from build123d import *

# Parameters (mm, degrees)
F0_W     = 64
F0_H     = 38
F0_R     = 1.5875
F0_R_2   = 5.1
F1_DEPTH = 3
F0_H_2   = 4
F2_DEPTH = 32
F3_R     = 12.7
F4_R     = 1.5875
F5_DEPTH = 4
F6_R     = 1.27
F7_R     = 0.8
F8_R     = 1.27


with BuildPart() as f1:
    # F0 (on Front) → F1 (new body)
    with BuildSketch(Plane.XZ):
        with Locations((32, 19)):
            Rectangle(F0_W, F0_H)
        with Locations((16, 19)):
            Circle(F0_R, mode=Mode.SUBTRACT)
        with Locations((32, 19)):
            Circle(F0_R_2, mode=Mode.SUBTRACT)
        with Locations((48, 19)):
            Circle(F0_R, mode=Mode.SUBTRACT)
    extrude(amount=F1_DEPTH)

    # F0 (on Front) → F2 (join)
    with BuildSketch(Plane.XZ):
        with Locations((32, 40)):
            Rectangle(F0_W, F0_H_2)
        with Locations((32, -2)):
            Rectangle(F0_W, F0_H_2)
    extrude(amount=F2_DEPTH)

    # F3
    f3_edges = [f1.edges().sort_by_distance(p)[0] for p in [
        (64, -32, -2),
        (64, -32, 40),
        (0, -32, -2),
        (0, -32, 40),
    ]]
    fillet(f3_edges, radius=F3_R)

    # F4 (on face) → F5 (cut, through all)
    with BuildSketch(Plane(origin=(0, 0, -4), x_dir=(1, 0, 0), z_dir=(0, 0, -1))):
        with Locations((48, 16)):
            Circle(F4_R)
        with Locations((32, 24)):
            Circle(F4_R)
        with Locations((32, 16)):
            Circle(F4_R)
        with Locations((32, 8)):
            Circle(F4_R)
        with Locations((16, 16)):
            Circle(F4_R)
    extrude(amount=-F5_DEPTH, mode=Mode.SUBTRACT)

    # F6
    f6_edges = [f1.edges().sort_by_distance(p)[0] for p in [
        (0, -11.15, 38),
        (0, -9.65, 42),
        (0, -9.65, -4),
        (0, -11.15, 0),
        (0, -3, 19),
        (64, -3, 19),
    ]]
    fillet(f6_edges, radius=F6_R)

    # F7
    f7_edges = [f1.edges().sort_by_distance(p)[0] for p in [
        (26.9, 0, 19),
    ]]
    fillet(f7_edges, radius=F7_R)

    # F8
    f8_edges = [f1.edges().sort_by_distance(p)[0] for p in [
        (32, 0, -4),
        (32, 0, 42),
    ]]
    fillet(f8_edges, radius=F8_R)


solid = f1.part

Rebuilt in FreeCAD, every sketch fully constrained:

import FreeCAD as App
import Part
import Sketcher

V = App.Vector
Q = App.Units.Quantity


def edges_at(feature, points):
    """Names of the edges that pass closest to the given points."""
    edges = feature.Shape.Edges
    near = lambda p: min(range(len(edges)), key=lambda i: edges[i].distToShape(Part.Vertex(*p))[0])
    return sorted({f"Edge{near(p) + 1}" for p in points})

doc = App.newDocument("Part")
body = doc.addObject("PartDesign::Body", "Body")

# Sketch on XZ plane
sketch1 = doc.addObject("Sketcher::SketchObject", "Sketch")
body.addObject(sketch1)
sketch1.AttachmentSupport = (doc.XZ_Plane, [""])
sketch1.MapMode = "FlatFace"
sketch1.addGeometry([
    Part.LineSegment(V(0, 38, 0), V(0, 0, 0)),  # 0
    Part.LineSegment(V(0, 0, 0), V(64, 0, 0)),  # 1
    Part.LineSegment(V(64, 0, 0), V(64, 38, 0)),  # 2
    Part.LineSegment(V(64, 38, 0), V(0, 38, 0)),  # 3
    Part.Circle(V(16, 19, 0), V(0, 0, 1), 1.5875),  # 4
    Part.Circle(V(32, 19, 0), V(0, 0, 1), 5.1),  # 5
    Part.Circle(V(48, 19, 0), V(0, 0, 1), 1.5875),  # 6
], False)
sketch1.addConstraint([
    Sketcher.Constraint("Coincident", 0, 2, 1, 1),
    Sketcher.Constraint("Coincident", 1, 2, 2, 1),
    Sketcher.Constraint("Coincident", 2, 2, 3, 1),
    Sketcher.Constraint("Coincident", 3, 2, 0, 1),
    Sketcher.Constraint("Vertical", 0),
    Sketcher.Constraint("Horizontal", 1),
    Sketcher.Constraint("Vertical", 2),
    Sketcher.Constraint("Horizontal", 3),
    Sketcher.Constraint("Coincident", 0, 2, -1, 1),
    Sketcher.Constraint("Equal", 4, 6),
    Sketcher.Constraint("Horizontal", 4, 3, 5, 3),
    Sketcher.Constraint("Horizontal", 5, 3, 6, 3),
    Sketcher.Constraint("Diameter", 5, Q("10.2 mm")),
    Sketcher.Constraint("DistanceX", 1, 1, 1, 2, Q("64 mm")),
    Sketcher.Constraint("DistanceY", 0, 2, 0, 1, Q("38 mm")),
    Sketcher.Constraint("Diameter", 4, Q("3.175 mm")),
    Sketcher.Constraint("DistanceX", -1, 1, 4, 3, Q("16 mm")),
    Sketcher.Constraint("DistanceY", -1, 1, 4, 3, Q("19 mm")),
    Sketcher.Constraint("DistanceX", -1, 1, 5, 3, Q("32 mm")),
    Sketcher.Constraint("DistanceX", -1, 1, 6, 3, Q("48 mm")),
])
pad1 = doc.addObject("PartDesign::Pad", "Pad")
body.addObject(pad1)
pad1.Profile = sketch1
pad1.Length = 3

# Sketch on XZ plane
sketch2 = doc.addObject("Sketcher::SketchObject", "Sketch001")
body.addObject(sketch2)
sketch2.AttachmentSupport = (doc.XZ_Plane, [""])
sketch2.MapMode = "FlatFace"
sketch2.addGeometry([
    Part.LineSegment(V(0, 42, 0), V(0, 38, 0)),  # 0
    Part.LineSegment(V(0, 38, 0), V(64, 38, 0)),  # 1
    Part.LineSegment(V(64, 38, 0), V(64, 42, 0)),  # 2
    Part.LineSegment(V(64, 42, 0), V(0, 42, 0)),  # 3
    Part.LineSegment(V(0, 0, 0), V(0, -4, 0)),  # 4
    Part.LineSegment(V(0, -4, 0), V(64, -4, 0)),  # 5
    Part.LineSegment(V(64, -4, 0), V(64, 0, 0)),  # 6
    Part.LineSegment(V(64, 0, 0), V(0, 0, 0)),  # 7
], False)
sketch2.addConstraint([
    Sketcher.Constraint("Coincident", 0, 2, 1, 1),
    Sketcher.Constraint("Coincident", 1, 2, 2, 1),
    Sketcher.Constraint("Coincident", 2, 2, 3, 1),
    Sketcher.Constraint("Coincident", 3, 2, 0, 1),
    Sketcher.Constraint("Coincident", 4, 2, 5, 1),
    Sketcher.Constraint("Coincident", 5, 2, 6, 1),
    Sketcher.Constraint("Coincident", 6, 2, 7, 1),
    Sketcher.Constraint("Coincident", 7, 2, 4, 1),
    Sketcher.Constraint("Vertical", 0),
    Sketcher.Constraint("Horizontal", 1),
    Sketcher.Constraint("Vertical", 2),
    Sketcher.Constraint("Horizontal", 3),
    Sketcher.Constraint("Vertical", 4),
    Sketcher.Constraint("Horizontal", 5),
    Sketcher.Constraint("Vertical", 6),
    Sketcher.Constraint("Horizontal", 7),
    Sketcher.Constraint("Coincident", 7, 2, -1, 1),
    Sketcher.Constraint("PointOnObject", 0, 2, -2),
    Sketcher.Constraint("Vertical", 2, 2, 5, 2),
    Sketcher.Constraint("Equal", 2, 4),
    Sketcher.Constraint("DistanceX", 1, 1, 1, 2, Q("64 mm")),
    Sketcher.Constraint("DistanceY", 0, 2, 0, 1, Q("4 mm")),
    Sketcher.Constraint("DistanceY", -1, 1, 0, 2, Q("38 mm")),
])
pad2 = doc.addObject("PartDesign::Pad", "Pad001")
body.addObject(pad2)
pad2.Profile = sketch2
pad2.Length = 32
doc.recompute()

fillet = doc.addObject("PartDesign::Fillet", "Fillet")
body.addObject(fillet)
fillet.Base = (pad2, edges_at(pad2, [
    (64, -32, -2),
    (64, -32, 40),
    (0, -32, -2),
    (0, -32, 40),
]))
fillet.Radius = 12.7

# Sketch on XY plane
sketch3 = doc.addObject("Sketcher::SketchObject", "Sketch002")
body.addObject(sketch3)
sketch3.AttachmentSupport = (doc.XY_Plane, [""])
sketch3.MapMode = "FlatFace"
sketch3.AttachmentOffset = App.Placement(V(0, 0, -4), App.Rotation())
sketch3.addGeometry([
    Part.Circle(V(48, -16, 0), V(0, 0, 1), 1.5875),  # 0
    Part.Circle(V(32, -24, 0), V(0, 0, 1), 1.5875),  # 1
    Part.Circle(V(32, -16, 0), V(0, 0, 1), 1.5875),  # 2
    Part.Circle(V(32, -8, 0), V(0, 0, 1), 1.5875),  # 3
    Part.Circle(V(16, -16, 0), V(0, 0, 1), 1.5875),  # 4
], False)
sketch3.addConstraint([
    Sketcher.Constraint("Equal", 0, 1),
    Sketcher.Constraint("Equal", 1, 2),
    Sketcher.Constraint("Equal", 2, 3),
    Sketcher.Constraint("Equal", 3, 4),
    Sketcher.Constraint("Horizontal", 0, 3, 2, 3),
    Sketcher.Constraint("Horizontal", 2, 3, 4, 3),
    Sketcher.Constraint("Vertical", 1, 3, 2, 3),
    Sketcher.Constraint("Vertical", 2, 3, 3, 3),
    Sketcher.Constraint("Diameter", 0, Q("3.175 mm")),
    Sketcher.Constraint("DistanceX", -1, 1, 0, 3, Q("48 mm")),
    Sketcher.Constraint("DistanceY", 0, 3, -1, 1, Q("16 mm")),
    Sketcher.Constraint("DistanceX", -1, 1, 1, 3, Q("32 mm")),
    Sketcher.Constraint("DistanceY", 1, 3, -1, 1, Q("24 mm")),
    Sketcher.Constraint("DistanceY", 3, 3, -1, 1, Q("8 mm")),
    Sketcher.Constraint("DistanceX", -1, 1, 4, 3, Q("16 mm")),
])
pocket1 = doc.addObject("PartDesign::Pocket", "Pocket")
body.addObject(pocket1)
pocket1.Profile = sketch3
pocket1.Length = 4
pocket1.Reversed = True
doc.recompute()

fillet2 = doc.addObject("PartDesign::Fillet", "Fillet001")
body.addObject(fillet2)
fillet2.Base = (pocket1, edges_at(pocket1, [
    (0, -11.15, 38),
    (0, -9.65, 42),
    (0, -9.65, -4),
    (0, -11.15, 0),
    (0, -3, 19),
    (64, -3, 19),
]))
fillet2.Radius = 1.27
doc.recompute()

fillet3 = doc.addObject("PartDesign::Fillet", "Fillet002")
body.addObject(fillet3)
fillet3.Base = (fillet2, edges_at(fillet2, [(26.9, 0, 19)]))
fillet3.Radius = 0.8
doc.recompute()

fillet4 = doc.addObject("PartDesign::Fillet", "Fillet003")
body.addObject(fillet4)
fillet4.Base = (fillet3, edges_at(fillet3, [(32, 0, -4), (32, 0, 42)]))
fillet4.Radius = 1.27

doc.recompute()
